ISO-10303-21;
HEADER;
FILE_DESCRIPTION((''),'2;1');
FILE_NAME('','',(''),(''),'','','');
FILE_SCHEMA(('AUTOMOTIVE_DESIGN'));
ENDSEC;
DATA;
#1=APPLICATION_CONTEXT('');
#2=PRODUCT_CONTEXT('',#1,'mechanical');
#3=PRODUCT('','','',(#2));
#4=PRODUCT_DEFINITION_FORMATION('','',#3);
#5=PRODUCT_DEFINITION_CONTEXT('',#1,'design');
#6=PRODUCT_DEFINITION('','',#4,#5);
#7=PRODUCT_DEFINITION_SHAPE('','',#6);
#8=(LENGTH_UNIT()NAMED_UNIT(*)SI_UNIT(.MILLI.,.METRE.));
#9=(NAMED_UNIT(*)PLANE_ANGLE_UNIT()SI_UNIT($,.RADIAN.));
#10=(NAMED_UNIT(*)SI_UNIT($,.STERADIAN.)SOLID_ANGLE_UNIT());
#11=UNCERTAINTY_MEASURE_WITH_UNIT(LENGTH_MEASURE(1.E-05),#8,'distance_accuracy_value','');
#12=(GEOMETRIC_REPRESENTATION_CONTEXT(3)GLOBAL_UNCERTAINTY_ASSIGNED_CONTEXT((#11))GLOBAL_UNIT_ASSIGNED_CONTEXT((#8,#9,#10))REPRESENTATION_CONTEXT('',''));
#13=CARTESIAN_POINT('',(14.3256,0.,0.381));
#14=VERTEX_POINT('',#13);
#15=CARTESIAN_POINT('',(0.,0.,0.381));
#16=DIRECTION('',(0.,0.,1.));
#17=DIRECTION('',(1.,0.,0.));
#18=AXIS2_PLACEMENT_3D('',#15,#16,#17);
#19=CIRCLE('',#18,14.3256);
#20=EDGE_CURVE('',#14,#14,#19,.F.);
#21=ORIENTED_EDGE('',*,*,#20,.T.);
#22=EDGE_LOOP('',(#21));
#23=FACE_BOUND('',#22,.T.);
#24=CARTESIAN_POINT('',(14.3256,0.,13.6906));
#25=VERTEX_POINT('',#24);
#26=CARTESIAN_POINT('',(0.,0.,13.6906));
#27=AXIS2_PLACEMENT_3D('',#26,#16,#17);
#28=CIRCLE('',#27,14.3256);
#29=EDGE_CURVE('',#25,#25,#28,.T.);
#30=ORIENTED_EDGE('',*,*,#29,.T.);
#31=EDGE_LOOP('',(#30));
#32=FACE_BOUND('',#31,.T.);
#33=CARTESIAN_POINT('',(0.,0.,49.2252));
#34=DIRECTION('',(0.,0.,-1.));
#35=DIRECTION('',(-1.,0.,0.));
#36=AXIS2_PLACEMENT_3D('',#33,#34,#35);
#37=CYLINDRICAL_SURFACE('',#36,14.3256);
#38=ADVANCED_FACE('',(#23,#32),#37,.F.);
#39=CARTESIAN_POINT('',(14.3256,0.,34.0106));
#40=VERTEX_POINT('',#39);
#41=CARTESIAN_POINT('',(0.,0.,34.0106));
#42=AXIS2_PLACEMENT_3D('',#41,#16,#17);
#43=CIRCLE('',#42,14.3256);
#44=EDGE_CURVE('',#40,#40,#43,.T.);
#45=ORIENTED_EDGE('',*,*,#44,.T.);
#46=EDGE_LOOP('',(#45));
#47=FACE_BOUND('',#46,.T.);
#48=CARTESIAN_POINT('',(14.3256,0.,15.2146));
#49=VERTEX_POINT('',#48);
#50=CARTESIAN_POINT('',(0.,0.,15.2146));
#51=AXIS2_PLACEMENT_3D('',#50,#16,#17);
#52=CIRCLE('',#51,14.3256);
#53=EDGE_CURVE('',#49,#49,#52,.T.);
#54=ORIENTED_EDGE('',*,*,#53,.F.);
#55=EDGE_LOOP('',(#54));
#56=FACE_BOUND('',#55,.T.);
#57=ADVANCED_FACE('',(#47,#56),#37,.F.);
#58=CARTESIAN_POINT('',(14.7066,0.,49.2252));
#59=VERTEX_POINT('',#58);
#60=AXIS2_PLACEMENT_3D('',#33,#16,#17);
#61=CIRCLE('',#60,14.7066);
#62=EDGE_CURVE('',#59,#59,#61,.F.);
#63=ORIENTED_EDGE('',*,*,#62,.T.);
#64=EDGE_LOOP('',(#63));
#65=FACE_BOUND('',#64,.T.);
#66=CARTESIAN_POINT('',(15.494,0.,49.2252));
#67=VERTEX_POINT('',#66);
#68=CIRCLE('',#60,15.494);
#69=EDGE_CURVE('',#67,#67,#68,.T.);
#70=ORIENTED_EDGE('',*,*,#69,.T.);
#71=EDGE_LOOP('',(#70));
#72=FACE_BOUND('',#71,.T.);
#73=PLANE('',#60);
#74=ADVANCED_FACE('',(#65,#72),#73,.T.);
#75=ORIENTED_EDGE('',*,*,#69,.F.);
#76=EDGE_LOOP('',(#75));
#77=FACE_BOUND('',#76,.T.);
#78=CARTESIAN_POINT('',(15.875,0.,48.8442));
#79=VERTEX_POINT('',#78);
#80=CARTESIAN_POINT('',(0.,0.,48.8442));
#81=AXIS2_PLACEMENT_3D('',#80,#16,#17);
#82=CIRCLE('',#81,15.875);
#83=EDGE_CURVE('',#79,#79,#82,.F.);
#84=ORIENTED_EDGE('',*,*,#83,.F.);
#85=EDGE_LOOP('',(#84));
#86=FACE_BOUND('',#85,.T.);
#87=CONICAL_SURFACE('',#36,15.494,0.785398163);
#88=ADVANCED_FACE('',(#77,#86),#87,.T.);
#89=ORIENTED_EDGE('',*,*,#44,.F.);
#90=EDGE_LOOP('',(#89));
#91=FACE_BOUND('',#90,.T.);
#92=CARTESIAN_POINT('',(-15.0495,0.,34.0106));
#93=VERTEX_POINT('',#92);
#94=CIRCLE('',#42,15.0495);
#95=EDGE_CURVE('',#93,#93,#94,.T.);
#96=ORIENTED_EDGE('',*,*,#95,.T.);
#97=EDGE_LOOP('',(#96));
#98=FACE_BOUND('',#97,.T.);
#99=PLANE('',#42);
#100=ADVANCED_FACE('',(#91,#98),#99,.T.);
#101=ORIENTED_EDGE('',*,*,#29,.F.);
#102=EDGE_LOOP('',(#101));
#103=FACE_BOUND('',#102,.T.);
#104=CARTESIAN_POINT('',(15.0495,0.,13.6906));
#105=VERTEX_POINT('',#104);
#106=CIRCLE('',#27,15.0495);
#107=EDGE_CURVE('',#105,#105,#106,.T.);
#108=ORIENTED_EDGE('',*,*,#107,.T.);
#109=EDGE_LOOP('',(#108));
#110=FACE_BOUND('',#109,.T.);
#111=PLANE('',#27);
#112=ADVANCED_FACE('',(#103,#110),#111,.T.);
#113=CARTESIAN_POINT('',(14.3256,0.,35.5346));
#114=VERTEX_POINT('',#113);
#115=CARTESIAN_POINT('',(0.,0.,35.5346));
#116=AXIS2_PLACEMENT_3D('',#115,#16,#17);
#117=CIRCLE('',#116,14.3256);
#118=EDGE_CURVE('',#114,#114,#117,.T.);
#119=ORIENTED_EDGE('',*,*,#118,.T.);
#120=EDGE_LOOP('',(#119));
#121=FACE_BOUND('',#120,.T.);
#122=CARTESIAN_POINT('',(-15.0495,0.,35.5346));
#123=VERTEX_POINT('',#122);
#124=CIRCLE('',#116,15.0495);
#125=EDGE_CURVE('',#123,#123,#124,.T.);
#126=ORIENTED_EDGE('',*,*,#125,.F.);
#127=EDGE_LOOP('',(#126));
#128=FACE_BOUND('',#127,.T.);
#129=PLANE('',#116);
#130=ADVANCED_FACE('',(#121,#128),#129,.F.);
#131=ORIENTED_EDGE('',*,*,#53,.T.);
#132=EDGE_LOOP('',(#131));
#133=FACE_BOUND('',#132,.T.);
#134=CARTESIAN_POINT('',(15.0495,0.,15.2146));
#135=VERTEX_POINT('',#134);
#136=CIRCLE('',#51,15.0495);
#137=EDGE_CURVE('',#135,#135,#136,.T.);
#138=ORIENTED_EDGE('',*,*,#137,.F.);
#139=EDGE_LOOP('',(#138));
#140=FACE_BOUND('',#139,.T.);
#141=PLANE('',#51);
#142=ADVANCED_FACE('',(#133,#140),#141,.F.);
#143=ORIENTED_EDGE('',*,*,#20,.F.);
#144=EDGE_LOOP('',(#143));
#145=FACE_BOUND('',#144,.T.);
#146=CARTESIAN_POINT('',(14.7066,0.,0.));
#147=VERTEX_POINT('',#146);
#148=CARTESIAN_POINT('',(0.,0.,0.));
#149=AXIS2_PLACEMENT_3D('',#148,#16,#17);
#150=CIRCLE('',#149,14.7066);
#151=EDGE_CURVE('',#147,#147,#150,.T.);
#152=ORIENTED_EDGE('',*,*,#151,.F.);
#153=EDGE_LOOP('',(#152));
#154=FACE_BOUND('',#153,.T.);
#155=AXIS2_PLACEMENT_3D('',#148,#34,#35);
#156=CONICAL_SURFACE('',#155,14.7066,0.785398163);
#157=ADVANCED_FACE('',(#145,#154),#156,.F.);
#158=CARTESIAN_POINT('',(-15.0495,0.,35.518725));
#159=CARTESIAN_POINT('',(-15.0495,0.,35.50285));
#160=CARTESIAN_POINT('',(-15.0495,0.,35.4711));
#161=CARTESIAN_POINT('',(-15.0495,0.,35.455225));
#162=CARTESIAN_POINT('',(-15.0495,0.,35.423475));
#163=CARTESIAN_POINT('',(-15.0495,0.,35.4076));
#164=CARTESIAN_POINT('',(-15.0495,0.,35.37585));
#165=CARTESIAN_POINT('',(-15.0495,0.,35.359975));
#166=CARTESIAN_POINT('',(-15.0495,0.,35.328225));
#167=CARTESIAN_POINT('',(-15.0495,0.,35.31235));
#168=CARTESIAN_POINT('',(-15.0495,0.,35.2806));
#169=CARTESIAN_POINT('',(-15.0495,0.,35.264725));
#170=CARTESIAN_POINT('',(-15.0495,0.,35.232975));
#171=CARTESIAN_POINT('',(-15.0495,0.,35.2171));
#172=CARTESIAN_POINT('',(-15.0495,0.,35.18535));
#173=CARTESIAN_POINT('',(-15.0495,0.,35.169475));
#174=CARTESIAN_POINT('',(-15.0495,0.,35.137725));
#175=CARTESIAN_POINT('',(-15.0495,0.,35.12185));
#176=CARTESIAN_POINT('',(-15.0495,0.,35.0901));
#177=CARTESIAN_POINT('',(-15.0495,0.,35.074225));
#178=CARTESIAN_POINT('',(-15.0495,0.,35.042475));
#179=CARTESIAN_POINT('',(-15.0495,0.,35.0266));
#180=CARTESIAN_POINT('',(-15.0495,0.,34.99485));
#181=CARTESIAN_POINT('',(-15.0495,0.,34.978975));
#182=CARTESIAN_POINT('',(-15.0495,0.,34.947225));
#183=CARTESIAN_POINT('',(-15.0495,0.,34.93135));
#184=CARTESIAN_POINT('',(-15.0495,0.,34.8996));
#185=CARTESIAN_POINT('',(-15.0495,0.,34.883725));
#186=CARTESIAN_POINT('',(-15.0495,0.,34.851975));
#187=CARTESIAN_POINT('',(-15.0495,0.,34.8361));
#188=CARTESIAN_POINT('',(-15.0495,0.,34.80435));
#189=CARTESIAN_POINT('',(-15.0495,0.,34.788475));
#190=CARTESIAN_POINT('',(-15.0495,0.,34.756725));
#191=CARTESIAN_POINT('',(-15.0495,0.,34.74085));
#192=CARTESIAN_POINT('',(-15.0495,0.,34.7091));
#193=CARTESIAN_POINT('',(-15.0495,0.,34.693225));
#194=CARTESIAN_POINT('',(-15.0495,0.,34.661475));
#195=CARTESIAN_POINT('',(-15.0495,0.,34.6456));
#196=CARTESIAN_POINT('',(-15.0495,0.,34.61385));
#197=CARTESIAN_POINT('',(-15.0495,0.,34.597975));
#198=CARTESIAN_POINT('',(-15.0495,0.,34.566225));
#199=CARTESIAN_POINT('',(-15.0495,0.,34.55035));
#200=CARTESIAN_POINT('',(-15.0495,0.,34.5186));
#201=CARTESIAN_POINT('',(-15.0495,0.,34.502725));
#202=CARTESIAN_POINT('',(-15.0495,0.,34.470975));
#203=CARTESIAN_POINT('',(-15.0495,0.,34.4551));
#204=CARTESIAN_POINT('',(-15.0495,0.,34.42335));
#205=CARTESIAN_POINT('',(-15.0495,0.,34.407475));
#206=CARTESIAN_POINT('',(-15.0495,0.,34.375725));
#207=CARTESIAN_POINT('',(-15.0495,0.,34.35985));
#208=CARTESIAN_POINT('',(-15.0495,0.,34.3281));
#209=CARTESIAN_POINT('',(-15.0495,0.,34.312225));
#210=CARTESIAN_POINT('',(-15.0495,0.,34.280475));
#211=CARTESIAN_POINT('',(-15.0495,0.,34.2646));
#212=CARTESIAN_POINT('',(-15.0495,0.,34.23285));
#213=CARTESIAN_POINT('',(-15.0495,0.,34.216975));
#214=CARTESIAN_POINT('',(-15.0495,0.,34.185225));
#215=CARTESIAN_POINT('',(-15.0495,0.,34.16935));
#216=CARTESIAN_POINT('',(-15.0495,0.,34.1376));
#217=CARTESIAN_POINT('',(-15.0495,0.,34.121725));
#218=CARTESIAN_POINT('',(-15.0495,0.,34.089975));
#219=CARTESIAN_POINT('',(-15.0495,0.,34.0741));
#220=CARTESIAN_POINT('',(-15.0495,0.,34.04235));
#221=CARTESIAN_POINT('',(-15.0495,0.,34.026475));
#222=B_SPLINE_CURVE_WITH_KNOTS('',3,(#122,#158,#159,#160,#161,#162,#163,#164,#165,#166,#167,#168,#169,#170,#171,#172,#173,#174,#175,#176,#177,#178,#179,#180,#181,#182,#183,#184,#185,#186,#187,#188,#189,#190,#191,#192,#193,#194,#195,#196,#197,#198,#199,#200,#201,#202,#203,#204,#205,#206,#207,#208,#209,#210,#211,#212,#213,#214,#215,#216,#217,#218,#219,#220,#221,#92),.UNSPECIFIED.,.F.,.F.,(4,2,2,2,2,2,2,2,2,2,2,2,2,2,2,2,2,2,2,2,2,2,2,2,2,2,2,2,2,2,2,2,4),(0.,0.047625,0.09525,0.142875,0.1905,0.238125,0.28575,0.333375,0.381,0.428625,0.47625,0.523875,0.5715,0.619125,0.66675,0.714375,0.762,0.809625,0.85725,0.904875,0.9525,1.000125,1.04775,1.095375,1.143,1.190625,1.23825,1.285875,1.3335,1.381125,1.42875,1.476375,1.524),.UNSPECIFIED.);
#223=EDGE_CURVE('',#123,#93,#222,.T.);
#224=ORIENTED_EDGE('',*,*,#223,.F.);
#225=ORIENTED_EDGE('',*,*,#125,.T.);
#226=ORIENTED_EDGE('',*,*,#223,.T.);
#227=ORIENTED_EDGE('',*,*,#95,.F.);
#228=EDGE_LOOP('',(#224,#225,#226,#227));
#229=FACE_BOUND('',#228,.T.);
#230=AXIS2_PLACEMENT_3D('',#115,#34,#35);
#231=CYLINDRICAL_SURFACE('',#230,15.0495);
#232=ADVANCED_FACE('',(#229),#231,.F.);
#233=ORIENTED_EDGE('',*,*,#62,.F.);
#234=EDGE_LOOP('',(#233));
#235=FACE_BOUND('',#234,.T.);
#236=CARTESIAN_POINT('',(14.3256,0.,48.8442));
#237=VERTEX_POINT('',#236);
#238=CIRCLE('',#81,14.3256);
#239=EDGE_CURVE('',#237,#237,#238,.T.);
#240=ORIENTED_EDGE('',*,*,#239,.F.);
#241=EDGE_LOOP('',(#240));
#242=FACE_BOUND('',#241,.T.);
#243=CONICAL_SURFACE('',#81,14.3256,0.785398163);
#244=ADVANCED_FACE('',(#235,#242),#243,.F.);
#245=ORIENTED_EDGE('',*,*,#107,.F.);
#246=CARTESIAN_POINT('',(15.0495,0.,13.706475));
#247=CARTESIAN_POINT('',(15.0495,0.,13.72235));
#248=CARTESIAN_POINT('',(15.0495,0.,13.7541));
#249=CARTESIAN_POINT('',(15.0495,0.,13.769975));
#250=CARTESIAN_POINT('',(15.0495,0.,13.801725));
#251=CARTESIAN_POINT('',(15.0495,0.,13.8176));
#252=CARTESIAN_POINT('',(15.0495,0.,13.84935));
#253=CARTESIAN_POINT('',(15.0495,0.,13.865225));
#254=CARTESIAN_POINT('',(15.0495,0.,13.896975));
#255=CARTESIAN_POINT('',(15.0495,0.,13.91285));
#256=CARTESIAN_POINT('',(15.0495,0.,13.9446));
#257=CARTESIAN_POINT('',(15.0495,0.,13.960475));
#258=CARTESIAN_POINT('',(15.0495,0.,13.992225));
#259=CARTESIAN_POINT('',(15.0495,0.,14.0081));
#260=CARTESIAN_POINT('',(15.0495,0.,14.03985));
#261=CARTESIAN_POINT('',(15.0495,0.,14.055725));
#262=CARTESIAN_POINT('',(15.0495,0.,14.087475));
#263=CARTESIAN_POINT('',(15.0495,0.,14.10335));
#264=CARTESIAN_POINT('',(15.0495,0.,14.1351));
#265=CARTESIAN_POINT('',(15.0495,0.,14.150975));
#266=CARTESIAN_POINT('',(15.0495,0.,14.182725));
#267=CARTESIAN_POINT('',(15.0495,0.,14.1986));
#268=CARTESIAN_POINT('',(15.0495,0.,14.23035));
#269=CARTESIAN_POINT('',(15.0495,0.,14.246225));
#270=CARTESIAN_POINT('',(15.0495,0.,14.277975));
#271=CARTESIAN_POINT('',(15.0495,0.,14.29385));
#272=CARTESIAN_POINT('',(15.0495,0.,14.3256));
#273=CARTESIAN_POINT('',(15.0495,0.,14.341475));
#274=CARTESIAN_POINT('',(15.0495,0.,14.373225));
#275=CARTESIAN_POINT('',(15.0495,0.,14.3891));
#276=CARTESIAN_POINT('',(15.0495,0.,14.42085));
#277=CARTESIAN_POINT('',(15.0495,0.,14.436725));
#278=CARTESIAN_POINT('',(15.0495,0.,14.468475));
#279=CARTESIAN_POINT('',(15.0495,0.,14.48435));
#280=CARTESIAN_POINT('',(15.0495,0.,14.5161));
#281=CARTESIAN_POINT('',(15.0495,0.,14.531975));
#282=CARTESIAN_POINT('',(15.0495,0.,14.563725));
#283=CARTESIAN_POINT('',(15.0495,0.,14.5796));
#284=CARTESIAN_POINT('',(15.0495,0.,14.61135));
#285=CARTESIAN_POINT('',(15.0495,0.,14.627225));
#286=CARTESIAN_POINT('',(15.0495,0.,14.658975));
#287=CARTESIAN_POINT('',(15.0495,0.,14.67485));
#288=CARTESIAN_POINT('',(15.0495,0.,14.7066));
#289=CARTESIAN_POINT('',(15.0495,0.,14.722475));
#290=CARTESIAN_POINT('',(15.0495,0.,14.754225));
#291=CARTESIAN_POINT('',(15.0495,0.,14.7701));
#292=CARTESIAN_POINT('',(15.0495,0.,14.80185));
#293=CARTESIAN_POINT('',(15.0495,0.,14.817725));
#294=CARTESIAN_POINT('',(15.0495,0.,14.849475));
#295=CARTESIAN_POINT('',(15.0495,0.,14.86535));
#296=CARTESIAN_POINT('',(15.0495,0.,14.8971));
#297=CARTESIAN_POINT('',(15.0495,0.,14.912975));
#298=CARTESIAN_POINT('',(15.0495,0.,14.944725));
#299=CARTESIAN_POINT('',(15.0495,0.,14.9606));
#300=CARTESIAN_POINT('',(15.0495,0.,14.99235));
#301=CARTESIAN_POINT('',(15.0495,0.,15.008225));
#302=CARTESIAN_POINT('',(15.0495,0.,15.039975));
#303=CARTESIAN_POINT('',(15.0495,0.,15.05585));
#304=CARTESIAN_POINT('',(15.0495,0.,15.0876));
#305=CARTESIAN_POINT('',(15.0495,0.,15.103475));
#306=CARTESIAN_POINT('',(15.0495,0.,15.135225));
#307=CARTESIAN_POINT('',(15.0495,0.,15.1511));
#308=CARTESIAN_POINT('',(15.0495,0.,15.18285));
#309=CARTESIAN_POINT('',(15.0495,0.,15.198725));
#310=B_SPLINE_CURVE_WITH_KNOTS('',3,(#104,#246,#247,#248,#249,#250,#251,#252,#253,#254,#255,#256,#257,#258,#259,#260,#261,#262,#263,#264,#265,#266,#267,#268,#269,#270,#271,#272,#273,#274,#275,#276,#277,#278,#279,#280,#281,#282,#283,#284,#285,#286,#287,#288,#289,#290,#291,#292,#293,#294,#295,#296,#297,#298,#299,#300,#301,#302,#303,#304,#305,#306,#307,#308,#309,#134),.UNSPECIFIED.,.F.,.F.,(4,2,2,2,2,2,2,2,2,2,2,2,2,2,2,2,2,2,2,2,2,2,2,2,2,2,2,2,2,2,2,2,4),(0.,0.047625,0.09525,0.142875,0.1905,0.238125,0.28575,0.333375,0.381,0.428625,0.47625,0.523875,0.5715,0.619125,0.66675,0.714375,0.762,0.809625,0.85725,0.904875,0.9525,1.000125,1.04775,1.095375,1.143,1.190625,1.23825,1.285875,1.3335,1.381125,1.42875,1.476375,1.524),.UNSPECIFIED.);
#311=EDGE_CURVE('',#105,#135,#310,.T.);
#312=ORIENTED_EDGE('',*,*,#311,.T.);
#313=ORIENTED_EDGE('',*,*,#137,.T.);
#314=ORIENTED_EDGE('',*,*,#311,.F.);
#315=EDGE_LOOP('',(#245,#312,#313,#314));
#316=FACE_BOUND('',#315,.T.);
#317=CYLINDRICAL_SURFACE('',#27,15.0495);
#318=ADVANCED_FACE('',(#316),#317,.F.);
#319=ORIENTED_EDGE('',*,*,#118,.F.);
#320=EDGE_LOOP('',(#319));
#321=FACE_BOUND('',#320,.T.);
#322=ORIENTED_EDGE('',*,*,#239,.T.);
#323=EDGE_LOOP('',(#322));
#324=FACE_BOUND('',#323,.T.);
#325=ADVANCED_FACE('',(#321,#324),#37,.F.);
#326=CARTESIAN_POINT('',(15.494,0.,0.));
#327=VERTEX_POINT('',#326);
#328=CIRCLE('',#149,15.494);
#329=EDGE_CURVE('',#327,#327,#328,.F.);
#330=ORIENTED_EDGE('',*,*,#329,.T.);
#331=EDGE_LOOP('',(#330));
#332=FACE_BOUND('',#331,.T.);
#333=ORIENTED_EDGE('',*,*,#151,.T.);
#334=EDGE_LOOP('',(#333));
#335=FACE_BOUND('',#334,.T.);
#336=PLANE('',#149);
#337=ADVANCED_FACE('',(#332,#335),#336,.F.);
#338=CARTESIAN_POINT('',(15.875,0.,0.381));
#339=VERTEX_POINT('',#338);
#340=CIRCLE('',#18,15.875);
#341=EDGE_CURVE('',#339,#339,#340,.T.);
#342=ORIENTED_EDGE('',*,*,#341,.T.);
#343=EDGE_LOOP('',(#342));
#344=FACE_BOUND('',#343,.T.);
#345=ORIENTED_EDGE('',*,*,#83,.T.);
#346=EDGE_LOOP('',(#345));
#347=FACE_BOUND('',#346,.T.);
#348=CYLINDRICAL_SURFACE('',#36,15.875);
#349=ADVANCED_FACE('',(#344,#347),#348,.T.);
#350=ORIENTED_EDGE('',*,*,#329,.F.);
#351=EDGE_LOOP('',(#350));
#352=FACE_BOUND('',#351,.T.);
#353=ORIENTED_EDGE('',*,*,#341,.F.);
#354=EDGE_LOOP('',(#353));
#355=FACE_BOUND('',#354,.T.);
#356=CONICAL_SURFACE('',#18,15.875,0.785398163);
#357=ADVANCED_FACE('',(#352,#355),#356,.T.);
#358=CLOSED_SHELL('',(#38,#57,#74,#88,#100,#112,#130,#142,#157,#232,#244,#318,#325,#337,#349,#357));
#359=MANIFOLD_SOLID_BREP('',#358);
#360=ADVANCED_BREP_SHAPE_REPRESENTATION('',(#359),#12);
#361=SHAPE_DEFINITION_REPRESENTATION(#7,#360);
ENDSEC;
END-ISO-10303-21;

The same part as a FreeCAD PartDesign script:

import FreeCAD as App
import Part
import Sketcher
from FreeCAD import Vector
Q = App.Units.Quantity


def edges_at(feature, points):
    """Names of the edges that pass closest to the given points."""
    edges = feature.Shape.Edges
    near = lambda p: min(range(len(edges)), key=lambda i: edges[i].distToShape(Part.Vertex(*p))[0])
    return sorted({f"Edge{near(p) + 1}" for p in points})

doc = App.newDocument("Part")
body = doc.addObject("PartDesign::Body", "Body")

sketch1 = doc.addObject("Sketcher::SketchObject", "Sketch")
body.addObject(sketch1)
sketch1.AttachmentSupport = (doc.XY_Plane, [""])
sketch1.MapMode = "FlatFace"
sketch1.addGeometry([
    Part.Circle(Vector(0, 0, 0), Vector(0, 0, 1), 16),
    Part.Circle(Vector(0, 0, 0), Vector(0, 0, 1), 14),
], False)
sketch1.addConstraint([
    Sketcher.Constraint("Coincident", 0, 3, -1, 1),
    Sketcher.Constraint("Coincident", 1, 3, -1, 1),
    Sketcher.Constraint("Diameter", 0, Q("1.25 in")),
    Sketcher.Constraint("Diameter", 1, Q("1.128 in")),
])
pad1 = doc.addObject("PartDesign::Pad", "Pad")
body.addObject(pad1)
pad1.Profile = sketch1
pad1.Length = Q("1.938 in")
doc.recompute()

chamfer = doc.addObject("PartDesign::Chamfer", "Chamfer")
body.addObject(chamfer)
chamfer.Base = (pad1, edges_at(pad1, [
    (-15.875, 0, 0),
    (-15.875, 0, 49.225),
    (-14.326, 0, 0),
    (-14.326, 0, 49.225),
]))
chamfer.Size = Q("0.015 in")

sketch2 = doc.addObject("Sketcher::SketchObject", "Sketch001")
body.addObject(sketch2)
sketch2.AttachmentSupport = (doc.XY_Plane, [""])
sketch2.MapMode = "FlatFace"
sketch2.AttachmentOffset = App.Placement(Vector(0, 0, 0.599 * 25.4), App.Rotation())
sketch2.addGeometry(Part.Circle(Vector(0, 0, 0), Vector(0, 0, 1), 15), False)
sketch2.addConstraint([
    Sketcher.Constraint("Coincident", 0, 3, -1, 1),
    Sketcher.Constraint("Diameter", 0, Q("1.185 in")),
])
pocket1 = doc.addObject("PartDesign::Pocket", "Pocket")
body.addObject(pocket1)
pocket1.Profile = sketch2
pocket1.Length = Q("0.06 in")

sketch3 = doc.addObject("Sketcher::SketchObject", "Sketch002")
body.addObject(sketch3)
sketch3.AttachmentSupport = (doc.XY_Plane, [""])
sketch3.MapMode = "FlatFace"
sketch3.AttachmentOffset = App.Placement(Vector(0, 0, 1.399 * 25.4), App.Rotation())
sketch3.addGeometry(Part.Circle(Vector(0, 0, 0), Vector(0, 0, 1), 15), False)
sketch3.addConstraint([
    Sketcher.Constraint("Coincident", 0, 3, -1, 1),
    Sketcher.Constraint("Diameter", 0, Q("1.185 in")),
])
pocket2 = doc.addObject("PartDesign::Pocket", "Pocket001")
body.addObject(pocket2)
pocket2.Profile = sketch3
pocket2.Length = Q("0.06 in")

doc.recompute()
